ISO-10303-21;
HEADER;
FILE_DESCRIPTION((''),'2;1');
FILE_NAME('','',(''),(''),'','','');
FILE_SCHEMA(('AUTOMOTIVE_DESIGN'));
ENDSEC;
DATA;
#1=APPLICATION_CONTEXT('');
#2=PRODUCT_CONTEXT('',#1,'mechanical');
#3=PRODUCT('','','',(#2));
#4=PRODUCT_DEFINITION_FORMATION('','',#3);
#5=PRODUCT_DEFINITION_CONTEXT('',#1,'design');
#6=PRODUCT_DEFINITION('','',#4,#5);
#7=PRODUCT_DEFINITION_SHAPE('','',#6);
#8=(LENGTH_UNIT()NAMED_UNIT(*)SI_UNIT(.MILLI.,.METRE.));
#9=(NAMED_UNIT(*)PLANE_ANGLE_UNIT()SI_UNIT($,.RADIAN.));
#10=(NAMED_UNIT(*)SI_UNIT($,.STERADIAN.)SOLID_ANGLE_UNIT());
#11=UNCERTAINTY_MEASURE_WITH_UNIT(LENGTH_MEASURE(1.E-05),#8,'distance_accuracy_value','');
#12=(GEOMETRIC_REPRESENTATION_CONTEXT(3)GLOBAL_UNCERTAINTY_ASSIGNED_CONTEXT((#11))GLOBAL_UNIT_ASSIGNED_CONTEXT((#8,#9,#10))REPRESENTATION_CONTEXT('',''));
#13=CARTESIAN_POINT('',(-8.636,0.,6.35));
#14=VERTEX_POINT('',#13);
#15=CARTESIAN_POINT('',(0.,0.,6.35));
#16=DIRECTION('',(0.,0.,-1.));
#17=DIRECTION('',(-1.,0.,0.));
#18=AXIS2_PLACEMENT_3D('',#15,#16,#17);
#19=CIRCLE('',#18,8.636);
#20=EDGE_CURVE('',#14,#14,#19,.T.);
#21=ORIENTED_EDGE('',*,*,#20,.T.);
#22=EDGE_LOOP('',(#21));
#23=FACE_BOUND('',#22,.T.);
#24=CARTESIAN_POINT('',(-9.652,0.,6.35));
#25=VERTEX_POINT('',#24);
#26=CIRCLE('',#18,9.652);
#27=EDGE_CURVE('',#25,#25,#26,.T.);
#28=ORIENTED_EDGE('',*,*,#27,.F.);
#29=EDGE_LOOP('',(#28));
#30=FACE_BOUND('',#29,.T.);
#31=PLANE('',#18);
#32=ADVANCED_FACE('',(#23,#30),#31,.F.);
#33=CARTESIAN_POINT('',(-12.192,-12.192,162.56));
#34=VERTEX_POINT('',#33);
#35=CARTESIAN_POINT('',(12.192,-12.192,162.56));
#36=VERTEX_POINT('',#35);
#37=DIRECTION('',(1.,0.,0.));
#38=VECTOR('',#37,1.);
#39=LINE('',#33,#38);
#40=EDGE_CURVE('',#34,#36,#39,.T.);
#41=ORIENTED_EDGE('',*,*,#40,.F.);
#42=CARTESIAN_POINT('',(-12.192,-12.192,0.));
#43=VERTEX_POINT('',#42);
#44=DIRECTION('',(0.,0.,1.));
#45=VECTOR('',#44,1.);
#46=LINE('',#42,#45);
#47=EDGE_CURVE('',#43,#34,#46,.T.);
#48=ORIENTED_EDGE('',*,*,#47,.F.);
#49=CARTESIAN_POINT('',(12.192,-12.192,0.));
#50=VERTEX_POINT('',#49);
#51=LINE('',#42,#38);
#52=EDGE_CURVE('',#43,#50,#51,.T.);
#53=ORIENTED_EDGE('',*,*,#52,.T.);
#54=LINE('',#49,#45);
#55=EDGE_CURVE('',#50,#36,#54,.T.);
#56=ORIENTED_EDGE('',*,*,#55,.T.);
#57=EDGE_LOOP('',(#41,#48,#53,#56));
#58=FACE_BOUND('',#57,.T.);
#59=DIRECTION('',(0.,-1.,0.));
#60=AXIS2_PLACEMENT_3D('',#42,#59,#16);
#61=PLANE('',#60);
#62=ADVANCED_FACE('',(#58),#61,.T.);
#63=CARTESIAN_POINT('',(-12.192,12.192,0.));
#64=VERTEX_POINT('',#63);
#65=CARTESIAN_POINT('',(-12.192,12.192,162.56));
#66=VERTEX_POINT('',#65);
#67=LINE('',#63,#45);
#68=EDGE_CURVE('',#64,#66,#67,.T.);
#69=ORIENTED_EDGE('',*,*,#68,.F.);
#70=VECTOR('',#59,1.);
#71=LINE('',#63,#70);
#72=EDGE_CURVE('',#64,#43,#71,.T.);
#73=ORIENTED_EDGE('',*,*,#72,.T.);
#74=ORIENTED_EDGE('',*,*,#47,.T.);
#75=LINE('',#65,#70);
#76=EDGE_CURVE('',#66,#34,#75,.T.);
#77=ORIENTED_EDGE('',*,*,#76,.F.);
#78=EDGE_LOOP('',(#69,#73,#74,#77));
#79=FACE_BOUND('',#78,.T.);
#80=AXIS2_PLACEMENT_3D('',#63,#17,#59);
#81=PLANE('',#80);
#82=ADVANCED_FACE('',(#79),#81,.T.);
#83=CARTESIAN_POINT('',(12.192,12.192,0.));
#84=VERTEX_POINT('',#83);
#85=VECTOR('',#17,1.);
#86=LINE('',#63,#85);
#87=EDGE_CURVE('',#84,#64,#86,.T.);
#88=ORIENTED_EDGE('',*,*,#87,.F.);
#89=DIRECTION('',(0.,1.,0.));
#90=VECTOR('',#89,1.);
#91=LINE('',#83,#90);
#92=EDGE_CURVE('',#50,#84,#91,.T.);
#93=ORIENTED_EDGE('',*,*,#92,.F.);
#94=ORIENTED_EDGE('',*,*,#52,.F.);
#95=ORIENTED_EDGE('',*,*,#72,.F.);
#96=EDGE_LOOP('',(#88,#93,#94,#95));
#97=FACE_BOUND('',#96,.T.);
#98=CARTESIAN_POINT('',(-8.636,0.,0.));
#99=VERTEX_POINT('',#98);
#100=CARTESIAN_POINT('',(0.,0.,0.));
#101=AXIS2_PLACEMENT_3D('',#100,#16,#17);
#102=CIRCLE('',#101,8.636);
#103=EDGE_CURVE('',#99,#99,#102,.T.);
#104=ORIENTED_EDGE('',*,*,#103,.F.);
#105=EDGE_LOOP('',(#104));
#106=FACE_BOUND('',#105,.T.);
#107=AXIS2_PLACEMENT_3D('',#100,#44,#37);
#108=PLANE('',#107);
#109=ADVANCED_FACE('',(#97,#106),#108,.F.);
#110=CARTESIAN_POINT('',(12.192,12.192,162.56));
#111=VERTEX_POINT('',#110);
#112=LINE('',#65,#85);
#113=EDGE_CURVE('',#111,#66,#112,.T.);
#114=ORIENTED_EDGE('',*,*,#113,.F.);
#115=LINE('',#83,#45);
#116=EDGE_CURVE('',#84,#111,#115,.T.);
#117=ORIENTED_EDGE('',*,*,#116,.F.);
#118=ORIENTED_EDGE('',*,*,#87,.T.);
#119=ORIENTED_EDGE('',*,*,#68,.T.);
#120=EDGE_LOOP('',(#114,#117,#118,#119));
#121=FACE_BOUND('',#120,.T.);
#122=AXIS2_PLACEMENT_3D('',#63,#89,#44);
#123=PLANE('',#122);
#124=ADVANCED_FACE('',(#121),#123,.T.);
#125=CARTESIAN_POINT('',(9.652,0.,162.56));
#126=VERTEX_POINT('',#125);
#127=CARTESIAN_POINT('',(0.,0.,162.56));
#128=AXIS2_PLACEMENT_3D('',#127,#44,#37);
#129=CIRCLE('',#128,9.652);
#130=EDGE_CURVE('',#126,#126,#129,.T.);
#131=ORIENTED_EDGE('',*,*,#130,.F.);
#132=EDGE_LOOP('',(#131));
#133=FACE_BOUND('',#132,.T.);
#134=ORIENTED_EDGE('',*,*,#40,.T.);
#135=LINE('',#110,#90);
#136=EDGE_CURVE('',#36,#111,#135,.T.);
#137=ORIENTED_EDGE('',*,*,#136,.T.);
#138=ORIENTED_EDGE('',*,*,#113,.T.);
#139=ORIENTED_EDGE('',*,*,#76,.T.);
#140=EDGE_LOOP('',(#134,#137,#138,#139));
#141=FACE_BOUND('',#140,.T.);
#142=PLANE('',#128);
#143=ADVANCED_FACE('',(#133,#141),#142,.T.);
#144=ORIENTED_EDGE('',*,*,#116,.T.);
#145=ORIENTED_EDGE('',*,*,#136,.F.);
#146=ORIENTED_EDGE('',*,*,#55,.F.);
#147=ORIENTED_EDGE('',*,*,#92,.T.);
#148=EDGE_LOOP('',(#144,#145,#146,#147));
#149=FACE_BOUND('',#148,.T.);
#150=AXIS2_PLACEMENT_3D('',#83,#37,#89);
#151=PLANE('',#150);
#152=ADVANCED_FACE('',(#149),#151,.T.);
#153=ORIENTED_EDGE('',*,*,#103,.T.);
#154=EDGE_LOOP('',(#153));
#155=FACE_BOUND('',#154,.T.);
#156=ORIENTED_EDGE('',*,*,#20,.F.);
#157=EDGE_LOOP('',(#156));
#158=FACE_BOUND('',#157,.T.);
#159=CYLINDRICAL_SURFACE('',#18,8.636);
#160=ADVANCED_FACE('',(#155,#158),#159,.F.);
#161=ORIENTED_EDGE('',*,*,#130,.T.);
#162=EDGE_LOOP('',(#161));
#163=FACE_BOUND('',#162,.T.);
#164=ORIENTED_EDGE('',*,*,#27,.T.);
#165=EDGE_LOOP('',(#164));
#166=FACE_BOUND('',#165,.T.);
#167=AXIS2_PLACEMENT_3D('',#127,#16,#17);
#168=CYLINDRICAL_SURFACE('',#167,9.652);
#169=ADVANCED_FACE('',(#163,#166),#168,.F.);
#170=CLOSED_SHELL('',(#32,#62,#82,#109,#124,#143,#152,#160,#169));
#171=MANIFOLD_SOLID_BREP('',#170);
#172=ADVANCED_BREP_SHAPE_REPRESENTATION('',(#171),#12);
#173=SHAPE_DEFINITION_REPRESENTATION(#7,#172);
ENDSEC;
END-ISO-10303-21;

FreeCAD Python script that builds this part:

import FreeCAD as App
import Part
import Sketcher
Q = App.Units.Quantity

doc = App.newDocument("Part")
body = doc.addObject("PartDesign::Body", "Body")

# Sketch on XY plane
sketch1 = body.newObject("Sketcher::SketchObject", "Sketch")
sketch1.AttachmentSupport = (doc.getObject("XY_Plane"), [""])
sketch1.MapMode = "FlatFace"
sketch1.addGeometry([
    Part.Circle(App.Vector(0, 0, 0), App.Vector(0, 0, 1), 12),
    Part.Circle(App.Vector(0, 0, 0), App.Vector(0, 0, 1), 10),
], False)
sketch1.addConstraint([
    Sketcher.Constraint("Coincident", 0, 3, -1, 1),
    Sketcher.Constraint("Coincident", 1, 3, -1, 1),
    Sketcher.Constraint("Diameter", 0, Q("0.96 in")),
    Sketcher.Constraint("Diameter", 1, Q("0.76 in")),
])
pad1 = body.newObject("PartDesign::Pad", "Pad")
pad1.Profile = sketch1
pad1.Length = Q("6.4 in")

# Sketch on XY plane
sketch2 = body.newObject("Sketcher::SketchObject", "Sketch001")
sketch2.AttachmentSupport = (doc.getObject("XY_Plane"), [""])
sketch2.MapMode = "FlatFace"
sketch2.addGeometry([
    Part.Circle(App.Vector(0, 0, 0), App.Vector(0, 0, 1), 10),
    Part.Circle(App.Vector(0, 0, 0), App.Vector(0, 0, 1), 9),
], False)
sketch2.addConstraint([
    Sketcher.Constraint("Coincident", 0, 3, -1, 1),
    Sketcher.Constraint("Coincident", 1, 3, -1, 1),
    Sketcher.Constraint("Diameter", 0, Q("0.76 in")),
    Sketcher.Constraint("Diameter", 1, Q("0.68 in")),
])
pad2 = body.newObject("PartDesign::Pad", "Pad001")
pad2.Profile = sketch2
pad2.Length = Q("0.25 in")

# Sketch on XY plane
sketch3 = body.newObject("Sketcher::SketchObject", "Sketch002")
sketch3.AttachmentSupport = (doc.getObject("XY_Plane"), [""])
sketch3.MapMode = "FlatFace"
sketch3.AttachmentOffset = App.Placement(App.Vector(0, 0, 6.4 * 25.4), App.Rotation())
sketch3.addGeometry([
    Part.LineSegment(App.Vector(-12, 12, 0), App.Vector(-12, -12, 0)),  # 0
    Part.LineSegment(App.Vector(-12, -12, 0), App.Vector(12, -12, 0)),  # 1
    Part.LineSegment(App.Vector(12, -12, 0), App.Vector(12, 12, 0)),  # 2
    Part.LineSegment(App.Vector(12, 12, 0), App.Vector(-12, 12, 0)),  # 3
    Part.Circle(App.Vector(0, 0, 0), App.Vector(0, 0, 1), 10),  # 4
], False)
sketch3.addConstraint([
    Sketcher.Constraint("Coincident", 0, 2, 1, 1),
    Sketcher.Constraint("Coincident", 1, 2, 2, 1),
    Sketcher.Constraint("Coincident", 2, 2, 3, 1),
    Sketcher.Constraint("Coincident", 3, 2, 0, 1),
    Sketcher.Constraint("Vertical", 0),
    Sketcher.Constraint("Horizontal", 1),
    Sketcher.Constraint("Vertical", 2),
    Sketcher.Constraint("Horizontal", 3),
    Sketcher.Constraint("Coincident", 4, 3, -1, 1),
    Sketcher.Constraint("Symmetric", 0, 2, 2, 2, -1, 1),
    Sketcher.Constraint("Equal", 3, 0),
    Sketcher.Constraint("Diameter", 4, Q("0.76 in")),
    Sketcher.Constraint("DistanceX", 1, 1, 1, 2, Q("0.96 in")),
])
pad3 = body.newObject("PartDesign::Pad", "Pad002")
pad3.Profile = sketch3
pad3.Length = Q("6.4 in")
pad3.Reversed = True

doc.recompute()
